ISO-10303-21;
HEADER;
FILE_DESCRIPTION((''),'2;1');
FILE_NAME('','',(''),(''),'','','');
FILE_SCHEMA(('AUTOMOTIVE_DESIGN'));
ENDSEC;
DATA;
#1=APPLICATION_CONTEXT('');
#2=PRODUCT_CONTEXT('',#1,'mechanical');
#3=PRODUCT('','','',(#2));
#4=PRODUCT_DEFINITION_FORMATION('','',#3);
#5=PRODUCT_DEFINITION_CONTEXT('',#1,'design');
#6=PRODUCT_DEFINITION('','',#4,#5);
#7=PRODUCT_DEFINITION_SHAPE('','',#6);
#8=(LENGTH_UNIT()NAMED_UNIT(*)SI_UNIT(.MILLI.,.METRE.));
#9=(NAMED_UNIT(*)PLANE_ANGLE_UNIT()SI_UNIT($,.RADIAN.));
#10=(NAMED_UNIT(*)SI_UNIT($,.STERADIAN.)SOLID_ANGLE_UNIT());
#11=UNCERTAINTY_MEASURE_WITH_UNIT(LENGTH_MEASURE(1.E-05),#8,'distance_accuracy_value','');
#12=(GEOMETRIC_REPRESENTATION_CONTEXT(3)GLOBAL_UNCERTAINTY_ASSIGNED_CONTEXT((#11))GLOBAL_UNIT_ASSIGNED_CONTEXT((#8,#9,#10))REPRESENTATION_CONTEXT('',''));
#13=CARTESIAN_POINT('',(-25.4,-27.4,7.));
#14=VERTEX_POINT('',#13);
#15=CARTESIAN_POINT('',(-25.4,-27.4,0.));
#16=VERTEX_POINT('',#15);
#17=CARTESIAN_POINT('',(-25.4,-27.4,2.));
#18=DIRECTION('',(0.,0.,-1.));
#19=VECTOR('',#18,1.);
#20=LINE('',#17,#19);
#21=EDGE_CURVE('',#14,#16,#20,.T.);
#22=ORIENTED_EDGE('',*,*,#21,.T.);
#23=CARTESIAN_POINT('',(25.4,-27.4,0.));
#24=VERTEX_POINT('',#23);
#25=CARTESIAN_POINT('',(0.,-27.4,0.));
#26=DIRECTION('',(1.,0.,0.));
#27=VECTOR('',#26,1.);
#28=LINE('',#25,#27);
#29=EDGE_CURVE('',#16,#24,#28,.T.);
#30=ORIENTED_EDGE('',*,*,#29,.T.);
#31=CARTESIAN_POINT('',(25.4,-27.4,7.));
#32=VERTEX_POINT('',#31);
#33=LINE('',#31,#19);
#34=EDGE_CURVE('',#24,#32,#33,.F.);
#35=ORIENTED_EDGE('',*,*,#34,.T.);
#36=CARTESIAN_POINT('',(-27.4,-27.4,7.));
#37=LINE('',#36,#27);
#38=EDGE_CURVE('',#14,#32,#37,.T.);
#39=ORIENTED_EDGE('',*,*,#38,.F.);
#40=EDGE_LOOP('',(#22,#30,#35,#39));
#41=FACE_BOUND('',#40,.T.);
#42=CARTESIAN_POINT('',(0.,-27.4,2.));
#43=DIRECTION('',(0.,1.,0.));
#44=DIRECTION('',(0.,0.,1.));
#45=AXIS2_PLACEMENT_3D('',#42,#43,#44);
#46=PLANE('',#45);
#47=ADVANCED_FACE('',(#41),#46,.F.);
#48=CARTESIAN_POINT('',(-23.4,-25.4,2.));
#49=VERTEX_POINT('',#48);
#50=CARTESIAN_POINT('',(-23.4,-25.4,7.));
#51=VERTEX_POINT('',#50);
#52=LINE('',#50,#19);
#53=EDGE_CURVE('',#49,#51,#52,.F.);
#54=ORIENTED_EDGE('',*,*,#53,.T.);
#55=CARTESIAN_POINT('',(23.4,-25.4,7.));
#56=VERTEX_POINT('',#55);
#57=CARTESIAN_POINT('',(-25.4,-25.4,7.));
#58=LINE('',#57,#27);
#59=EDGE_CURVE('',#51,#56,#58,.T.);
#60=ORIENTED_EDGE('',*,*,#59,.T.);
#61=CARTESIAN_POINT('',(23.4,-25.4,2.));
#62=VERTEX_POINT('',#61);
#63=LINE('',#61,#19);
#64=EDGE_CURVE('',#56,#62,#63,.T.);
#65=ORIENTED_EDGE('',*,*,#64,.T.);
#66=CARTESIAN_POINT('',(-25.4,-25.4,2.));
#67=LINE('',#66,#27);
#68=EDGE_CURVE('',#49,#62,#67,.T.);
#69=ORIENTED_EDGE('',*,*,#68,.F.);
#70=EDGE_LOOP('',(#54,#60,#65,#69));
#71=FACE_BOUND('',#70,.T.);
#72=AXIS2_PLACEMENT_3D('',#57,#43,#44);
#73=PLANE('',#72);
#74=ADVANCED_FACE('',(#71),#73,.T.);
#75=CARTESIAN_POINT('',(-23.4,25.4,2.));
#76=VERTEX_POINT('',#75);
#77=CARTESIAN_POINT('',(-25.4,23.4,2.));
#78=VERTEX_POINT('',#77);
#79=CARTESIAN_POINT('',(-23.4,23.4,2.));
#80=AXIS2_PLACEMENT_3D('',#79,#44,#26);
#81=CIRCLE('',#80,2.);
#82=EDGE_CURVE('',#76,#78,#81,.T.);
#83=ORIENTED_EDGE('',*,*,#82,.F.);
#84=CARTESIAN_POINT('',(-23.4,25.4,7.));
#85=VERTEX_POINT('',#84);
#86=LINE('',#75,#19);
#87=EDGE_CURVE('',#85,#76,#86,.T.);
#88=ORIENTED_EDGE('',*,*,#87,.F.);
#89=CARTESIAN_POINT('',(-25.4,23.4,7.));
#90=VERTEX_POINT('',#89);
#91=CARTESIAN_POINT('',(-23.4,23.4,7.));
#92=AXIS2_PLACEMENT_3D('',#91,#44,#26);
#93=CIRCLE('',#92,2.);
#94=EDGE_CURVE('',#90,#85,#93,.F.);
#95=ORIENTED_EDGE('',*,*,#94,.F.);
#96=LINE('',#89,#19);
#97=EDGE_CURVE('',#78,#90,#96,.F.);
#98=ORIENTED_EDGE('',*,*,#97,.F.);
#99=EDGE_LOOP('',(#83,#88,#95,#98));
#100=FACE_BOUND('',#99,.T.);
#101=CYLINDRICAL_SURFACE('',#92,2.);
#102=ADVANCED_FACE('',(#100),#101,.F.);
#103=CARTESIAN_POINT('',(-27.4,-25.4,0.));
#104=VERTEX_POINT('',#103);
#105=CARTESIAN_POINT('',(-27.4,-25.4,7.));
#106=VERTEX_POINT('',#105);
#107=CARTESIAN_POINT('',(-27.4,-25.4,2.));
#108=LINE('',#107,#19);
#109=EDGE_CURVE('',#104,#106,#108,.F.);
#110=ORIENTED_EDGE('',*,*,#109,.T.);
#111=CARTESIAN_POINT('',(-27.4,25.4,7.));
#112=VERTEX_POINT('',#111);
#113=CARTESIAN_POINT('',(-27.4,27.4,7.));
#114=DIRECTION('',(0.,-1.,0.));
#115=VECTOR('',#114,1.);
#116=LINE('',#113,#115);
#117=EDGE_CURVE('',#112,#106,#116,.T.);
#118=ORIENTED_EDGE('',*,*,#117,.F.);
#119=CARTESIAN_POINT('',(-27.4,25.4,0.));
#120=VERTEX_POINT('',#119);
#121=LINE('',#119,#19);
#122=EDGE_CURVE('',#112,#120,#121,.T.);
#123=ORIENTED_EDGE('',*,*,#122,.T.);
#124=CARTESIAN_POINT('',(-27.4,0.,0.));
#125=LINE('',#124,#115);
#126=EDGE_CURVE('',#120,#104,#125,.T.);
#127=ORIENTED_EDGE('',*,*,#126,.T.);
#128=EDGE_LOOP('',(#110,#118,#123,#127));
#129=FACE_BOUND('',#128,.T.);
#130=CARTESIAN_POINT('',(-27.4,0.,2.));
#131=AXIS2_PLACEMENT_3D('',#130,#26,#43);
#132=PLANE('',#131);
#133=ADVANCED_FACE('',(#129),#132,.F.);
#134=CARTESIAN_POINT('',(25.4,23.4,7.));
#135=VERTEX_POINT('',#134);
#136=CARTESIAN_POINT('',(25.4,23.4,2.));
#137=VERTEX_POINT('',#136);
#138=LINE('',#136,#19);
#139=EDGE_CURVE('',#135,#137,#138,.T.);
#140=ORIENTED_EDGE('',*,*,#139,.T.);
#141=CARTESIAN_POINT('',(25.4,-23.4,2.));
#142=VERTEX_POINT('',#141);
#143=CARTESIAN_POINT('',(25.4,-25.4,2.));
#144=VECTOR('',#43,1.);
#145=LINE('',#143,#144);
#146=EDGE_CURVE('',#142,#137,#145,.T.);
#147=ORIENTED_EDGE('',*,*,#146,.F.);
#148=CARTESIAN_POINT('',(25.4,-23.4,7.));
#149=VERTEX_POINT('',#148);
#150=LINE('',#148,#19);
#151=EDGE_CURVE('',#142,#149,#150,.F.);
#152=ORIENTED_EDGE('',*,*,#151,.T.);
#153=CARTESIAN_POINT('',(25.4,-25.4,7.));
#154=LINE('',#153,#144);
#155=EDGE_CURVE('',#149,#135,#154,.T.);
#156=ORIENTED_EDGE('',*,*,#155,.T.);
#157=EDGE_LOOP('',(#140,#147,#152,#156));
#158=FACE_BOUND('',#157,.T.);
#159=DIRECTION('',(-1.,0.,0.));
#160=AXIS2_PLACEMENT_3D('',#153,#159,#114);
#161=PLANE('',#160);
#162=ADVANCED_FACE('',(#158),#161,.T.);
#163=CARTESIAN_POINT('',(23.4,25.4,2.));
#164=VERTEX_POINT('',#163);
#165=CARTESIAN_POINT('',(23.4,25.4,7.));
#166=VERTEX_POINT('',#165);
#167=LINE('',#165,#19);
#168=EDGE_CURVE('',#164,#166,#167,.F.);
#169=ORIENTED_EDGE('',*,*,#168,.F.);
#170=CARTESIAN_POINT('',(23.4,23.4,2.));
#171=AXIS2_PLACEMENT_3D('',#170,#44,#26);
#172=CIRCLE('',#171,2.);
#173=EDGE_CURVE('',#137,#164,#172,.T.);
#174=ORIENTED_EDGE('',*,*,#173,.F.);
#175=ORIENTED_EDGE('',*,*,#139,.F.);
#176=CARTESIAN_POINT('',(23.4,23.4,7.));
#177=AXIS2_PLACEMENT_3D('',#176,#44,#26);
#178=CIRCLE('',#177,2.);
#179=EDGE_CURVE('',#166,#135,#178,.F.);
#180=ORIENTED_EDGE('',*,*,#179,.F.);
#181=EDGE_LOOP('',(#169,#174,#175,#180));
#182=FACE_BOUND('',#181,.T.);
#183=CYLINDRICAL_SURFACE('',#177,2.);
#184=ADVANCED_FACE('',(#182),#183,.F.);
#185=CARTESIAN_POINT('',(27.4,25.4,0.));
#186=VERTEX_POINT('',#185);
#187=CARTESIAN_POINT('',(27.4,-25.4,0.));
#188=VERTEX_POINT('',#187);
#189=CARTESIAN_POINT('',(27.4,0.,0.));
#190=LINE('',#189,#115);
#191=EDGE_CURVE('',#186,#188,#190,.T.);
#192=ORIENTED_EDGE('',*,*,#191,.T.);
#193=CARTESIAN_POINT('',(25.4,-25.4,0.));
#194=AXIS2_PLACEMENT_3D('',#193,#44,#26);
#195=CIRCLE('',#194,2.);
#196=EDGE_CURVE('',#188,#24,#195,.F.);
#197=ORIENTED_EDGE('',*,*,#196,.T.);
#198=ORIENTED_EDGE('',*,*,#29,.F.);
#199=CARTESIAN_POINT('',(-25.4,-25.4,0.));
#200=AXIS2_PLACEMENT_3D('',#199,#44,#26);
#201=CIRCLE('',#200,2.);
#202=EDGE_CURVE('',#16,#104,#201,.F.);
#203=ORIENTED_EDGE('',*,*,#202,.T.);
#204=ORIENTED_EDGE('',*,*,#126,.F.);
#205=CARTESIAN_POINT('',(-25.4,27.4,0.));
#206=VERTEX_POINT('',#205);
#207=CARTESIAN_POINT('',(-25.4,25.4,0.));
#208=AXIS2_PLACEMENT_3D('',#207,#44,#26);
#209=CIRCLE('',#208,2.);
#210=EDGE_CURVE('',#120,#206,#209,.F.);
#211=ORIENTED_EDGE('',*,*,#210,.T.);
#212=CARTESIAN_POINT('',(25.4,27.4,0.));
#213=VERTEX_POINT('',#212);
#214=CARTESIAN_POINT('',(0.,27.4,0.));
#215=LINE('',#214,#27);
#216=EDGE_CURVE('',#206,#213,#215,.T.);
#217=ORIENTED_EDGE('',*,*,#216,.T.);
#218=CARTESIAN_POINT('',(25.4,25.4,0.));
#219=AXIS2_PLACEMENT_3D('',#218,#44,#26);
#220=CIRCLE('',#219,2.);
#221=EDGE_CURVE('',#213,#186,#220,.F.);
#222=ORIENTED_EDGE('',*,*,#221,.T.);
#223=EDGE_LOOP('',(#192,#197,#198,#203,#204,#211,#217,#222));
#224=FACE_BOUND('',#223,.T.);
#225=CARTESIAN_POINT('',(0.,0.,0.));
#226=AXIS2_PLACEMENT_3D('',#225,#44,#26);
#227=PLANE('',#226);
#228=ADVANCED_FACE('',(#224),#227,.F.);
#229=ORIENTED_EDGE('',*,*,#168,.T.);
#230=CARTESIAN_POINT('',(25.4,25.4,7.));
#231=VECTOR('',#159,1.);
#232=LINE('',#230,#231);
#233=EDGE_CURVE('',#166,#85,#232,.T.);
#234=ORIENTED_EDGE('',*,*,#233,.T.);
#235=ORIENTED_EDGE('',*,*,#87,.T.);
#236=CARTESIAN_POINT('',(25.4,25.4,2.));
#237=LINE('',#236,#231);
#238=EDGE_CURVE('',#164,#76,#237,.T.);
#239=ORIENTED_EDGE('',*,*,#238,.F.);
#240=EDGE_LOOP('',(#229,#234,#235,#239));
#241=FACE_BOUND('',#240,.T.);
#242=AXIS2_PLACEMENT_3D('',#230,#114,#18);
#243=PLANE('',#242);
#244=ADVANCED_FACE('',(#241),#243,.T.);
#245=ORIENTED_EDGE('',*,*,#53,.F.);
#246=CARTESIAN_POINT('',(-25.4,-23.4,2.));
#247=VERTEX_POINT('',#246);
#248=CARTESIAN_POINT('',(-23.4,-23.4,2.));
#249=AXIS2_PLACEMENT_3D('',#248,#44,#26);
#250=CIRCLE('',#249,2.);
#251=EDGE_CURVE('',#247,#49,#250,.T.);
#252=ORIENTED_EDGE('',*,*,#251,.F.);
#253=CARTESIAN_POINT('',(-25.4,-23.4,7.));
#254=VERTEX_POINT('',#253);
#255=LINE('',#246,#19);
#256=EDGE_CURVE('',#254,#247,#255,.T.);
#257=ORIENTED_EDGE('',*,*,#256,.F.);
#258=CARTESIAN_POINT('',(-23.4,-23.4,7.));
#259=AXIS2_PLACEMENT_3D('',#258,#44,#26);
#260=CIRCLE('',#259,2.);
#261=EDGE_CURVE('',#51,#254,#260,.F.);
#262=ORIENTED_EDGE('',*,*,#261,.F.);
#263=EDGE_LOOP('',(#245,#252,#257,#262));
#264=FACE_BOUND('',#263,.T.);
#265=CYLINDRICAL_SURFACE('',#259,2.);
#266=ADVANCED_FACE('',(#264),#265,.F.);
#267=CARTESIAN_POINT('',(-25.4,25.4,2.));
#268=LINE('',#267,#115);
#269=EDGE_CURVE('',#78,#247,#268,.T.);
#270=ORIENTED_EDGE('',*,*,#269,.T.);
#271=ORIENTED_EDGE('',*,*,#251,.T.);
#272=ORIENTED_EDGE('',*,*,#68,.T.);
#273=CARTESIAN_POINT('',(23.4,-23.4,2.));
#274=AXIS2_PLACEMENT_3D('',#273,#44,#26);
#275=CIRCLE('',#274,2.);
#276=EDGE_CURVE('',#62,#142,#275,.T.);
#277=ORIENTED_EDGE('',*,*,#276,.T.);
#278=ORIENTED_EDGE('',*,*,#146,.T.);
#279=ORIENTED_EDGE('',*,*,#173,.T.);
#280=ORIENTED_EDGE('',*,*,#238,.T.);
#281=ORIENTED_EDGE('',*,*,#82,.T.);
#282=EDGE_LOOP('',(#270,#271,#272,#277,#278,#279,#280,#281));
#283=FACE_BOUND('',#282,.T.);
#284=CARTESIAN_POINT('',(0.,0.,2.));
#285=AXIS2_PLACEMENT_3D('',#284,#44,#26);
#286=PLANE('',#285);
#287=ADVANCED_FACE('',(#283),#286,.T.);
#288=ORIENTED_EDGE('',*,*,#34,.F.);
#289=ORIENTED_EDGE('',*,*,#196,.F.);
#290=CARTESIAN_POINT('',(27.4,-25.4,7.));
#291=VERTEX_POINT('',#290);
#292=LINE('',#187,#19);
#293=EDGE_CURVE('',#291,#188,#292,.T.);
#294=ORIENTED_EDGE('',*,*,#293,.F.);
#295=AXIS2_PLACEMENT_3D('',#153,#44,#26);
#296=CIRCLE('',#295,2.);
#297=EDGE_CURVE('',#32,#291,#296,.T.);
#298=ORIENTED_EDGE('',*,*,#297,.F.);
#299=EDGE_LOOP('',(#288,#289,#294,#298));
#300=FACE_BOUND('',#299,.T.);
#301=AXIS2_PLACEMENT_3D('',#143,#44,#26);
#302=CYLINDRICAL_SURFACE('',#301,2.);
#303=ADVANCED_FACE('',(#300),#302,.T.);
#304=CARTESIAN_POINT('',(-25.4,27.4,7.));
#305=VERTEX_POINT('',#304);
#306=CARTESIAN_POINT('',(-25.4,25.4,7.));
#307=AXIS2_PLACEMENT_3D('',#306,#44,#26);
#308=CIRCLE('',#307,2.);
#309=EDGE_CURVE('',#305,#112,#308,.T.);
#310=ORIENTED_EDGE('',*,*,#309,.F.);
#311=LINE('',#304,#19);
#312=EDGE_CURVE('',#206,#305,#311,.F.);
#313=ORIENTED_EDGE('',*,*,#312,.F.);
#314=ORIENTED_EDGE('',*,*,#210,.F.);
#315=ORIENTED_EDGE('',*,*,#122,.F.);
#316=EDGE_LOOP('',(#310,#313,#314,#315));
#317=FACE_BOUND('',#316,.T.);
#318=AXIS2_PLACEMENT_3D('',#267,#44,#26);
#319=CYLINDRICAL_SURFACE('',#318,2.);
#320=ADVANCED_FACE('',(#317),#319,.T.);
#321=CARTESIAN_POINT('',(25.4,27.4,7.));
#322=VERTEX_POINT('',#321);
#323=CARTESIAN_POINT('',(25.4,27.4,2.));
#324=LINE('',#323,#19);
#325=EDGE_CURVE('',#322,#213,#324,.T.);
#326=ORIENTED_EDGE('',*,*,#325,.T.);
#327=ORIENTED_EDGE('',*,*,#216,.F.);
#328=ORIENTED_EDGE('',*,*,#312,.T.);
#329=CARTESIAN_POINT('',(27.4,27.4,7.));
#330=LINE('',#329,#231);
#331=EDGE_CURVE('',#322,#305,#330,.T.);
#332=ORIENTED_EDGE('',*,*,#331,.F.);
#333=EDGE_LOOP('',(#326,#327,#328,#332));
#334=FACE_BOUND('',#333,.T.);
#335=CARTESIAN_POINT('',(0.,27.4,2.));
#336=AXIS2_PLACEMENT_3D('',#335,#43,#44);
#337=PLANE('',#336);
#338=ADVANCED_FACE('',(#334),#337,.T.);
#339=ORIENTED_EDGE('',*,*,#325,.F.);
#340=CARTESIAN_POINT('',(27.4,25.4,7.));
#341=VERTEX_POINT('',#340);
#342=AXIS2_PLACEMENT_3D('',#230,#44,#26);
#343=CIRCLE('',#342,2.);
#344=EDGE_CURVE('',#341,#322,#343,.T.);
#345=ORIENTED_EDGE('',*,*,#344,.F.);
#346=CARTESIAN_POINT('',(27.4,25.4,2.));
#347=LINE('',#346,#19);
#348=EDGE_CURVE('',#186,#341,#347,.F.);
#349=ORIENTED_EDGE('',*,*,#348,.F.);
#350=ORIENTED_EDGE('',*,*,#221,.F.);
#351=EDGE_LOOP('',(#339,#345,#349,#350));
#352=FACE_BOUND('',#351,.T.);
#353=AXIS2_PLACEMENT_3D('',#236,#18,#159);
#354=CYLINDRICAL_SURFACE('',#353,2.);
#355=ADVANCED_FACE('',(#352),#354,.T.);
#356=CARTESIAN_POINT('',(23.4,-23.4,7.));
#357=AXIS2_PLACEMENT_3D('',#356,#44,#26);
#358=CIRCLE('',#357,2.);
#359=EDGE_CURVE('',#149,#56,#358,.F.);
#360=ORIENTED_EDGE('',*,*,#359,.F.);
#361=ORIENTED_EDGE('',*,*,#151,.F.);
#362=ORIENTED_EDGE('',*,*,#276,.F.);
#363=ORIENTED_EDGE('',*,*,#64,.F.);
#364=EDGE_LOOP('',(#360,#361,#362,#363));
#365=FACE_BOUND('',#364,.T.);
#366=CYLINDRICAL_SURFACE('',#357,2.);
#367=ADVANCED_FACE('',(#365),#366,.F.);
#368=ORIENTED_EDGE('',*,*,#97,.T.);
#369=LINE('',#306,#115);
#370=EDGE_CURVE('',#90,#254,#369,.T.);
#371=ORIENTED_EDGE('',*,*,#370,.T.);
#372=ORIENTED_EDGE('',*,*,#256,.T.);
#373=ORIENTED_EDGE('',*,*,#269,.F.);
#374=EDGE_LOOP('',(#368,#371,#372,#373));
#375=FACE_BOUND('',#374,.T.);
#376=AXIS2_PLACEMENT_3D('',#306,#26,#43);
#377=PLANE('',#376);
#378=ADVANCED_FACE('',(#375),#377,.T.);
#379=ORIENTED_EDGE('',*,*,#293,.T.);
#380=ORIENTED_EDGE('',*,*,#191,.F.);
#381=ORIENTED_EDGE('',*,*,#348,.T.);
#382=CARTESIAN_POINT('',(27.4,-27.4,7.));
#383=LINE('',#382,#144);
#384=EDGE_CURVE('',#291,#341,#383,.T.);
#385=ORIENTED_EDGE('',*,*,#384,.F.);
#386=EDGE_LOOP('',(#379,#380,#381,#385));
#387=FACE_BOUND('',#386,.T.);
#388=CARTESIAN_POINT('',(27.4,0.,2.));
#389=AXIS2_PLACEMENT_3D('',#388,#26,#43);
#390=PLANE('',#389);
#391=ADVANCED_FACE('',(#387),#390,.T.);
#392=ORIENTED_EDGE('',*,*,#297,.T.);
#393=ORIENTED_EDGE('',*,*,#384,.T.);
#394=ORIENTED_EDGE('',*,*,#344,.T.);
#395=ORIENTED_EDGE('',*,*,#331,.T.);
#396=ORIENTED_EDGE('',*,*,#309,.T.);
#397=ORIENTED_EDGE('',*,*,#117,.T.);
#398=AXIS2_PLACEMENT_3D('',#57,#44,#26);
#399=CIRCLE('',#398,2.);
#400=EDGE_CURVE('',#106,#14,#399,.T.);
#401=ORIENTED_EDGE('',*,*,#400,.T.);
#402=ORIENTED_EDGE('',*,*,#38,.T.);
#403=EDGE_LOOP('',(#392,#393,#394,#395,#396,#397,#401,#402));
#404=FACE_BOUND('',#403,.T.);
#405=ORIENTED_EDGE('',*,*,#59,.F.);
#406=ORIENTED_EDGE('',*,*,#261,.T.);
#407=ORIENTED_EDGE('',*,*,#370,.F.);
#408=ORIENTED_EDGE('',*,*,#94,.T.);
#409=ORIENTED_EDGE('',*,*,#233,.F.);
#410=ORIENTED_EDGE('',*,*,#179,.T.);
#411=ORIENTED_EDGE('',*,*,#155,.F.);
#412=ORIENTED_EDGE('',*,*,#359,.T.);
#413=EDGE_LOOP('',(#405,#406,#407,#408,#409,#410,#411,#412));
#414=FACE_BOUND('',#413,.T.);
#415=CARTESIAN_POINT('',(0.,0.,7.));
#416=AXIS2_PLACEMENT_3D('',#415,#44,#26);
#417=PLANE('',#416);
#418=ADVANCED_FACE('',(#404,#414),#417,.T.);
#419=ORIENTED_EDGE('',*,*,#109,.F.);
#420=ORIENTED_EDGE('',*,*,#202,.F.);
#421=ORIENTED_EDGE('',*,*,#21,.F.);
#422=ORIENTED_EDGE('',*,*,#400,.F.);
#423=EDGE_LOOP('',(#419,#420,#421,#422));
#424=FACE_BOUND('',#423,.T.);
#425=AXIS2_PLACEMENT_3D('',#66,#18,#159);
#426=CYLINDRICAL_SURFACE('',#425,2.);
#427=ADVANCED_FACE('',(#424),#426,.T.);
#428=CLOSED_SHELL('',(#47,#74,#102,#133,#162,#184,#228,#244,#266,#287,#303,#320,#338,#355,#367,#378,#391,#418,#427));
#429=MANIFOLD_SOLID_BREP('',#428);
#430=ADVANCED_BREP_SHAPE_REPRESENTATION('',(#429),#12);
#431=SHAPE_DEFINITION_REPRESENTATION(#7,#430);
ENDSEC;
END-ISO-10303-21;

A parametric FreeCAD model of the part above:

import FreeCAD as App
import Part
import Sketcher

V = App.Vector


def edges_at(feature, points):
    """Names of the edges that pass closest to the given points."""
    edges = feature.Shape.Edges
    near = lambda p: min(range(len(edges)), key=lambda i: edges[i].distToShape(Part.Vertex(*p))[0])
    return sorted({f"Edge{near(p) + 1}" for p in points})

doc = App.newDocument("Part")
body = doc.addObject("PartDesign::Body", "Body")

sketch1 = body.newObject("Sketcher::SketchObject", "Sketch")
sketch1.AttachmentSupport = (doc.getObject("XY_Plane"), [""])
sketch1.MapMode = "FlatFace"
sketch1.addGeometry([
    Part.LineSegment(V(-27, 27, 0), V(-27, -27, 0)),
    Part.LineSegment(V(-27, -27, 0), V(27, -27, 0)),
    Part.LineSegment(V(27, -27, 0), V(27, 27, 0)),
    Part.LineSegment(V(27, 27, 0), V(-27, 27, 0)),
], False)
sketch1.addConstraint([
    Sketcher.Constraint("Coincident", 0, 2, 1, 1),
    Sketcher.Constraint("Coincident", 1, 2, 2, 1),
    Sketcher.Constraint("Coincident", 2, 2, 3, 1),
    Sketcher.Constraint("Coincident", 3, 2, 0, 1),
    Sketcher.Constraint("Vertical", 0),
    Sketcher.Constraint("Horizontal", 1),
    Sketcher.Constraint("Vertical", 2),
    Sketcher.Constraint("Horizontal", 3),
    Sketcher.Constraint("Symmetric", 0, 2, 2, 2, -1, 1),
    Sketcher.Constraint("Equal", 3, 0),
    Sketcher.Constraint("DistanceX", 1, 1, 1, 2, 54.8),
])
pad1 = body.newObject("PartDesign::Pad", "Pad")
pad1.Profile = sketch1
pad1.Length = 2

sketch2 = body.newObject("Sketcher::SketchObject", "Sketch001")
sketch2.AttachmentSupport = (doc.getObject("XY_Plane"), [""])
sketch2.MapMode = "FlatFace"
sketch2.AttachmentOffset = App.Placement(V(0, 0, 2), App.Rotation())
sketch2.addGeometry([
    Part.LineSegment(V(-27, 27, 0), V(-27, -27, 0)),
    Part.LineSegment(V(-27, -27, 0), V(27, -27, 0)),
    Part.LineSegment(V(27, -27, 0), V(27, 27, 0)),
    Part.LineSegment(V(27, 27, 0), V(-27, 27, 0)),
    Part.LineSegment(V(25, -25, 0), V(-25, -25, 0)),
    Part.LineSegment(V(-25, -25, 0), V(-25, 25, 0)),
    Part.LineSegment(V(-25, 25, 0), V(25, 25, 0)),
    Part.LineSegment(V(25, 25, 0), V(25, -25, 0)),
], False)
sketch2.addConstraint([
    Sketcher.Constraint("Coincident", 0, 2, 1, 1),
    Sketcher.Constraint("Coincident", 1, 2, 2, 1),
    Sketcher.Constraint("Coincident", 2, 2, 3, 1),
    Sketcher.Constraint("Coincident", 3, 2, 0, 1),
    Sketcher.Constraint("Coincident", 4, 2, 5, 1),
    Sketcher.Constraint("Coincident", 5, 2, 6, 1),
    Sketcher.Constraint("Coincident", 6, 2, 7, 1),
    Sketcher.Constraint("Coincident", 7, 2, 4, 1),
    Sketcher.Constraint("Vertical", 0),
    Sketcher.Constraint("Horizontal", 1),
    Sketcher.Constraint("Vertical", 2),
    Sketcher.Constraint("Horizontal", 3),
    Sketcher.Constraint("Horizontal", 4),
    Sketcher.Constraint("Vertical", 5),
    Sketcher.Constraint("Horizontal", 6),
    Sketcher.Constraint("Vertical", 7),
    Sketcher.Constraint("Symmetric", 0, 2, 2, 2, -1, 1),
    Sketcher.Constraint("Symmetric", 4, 2, 6, 2, -1, 1),
    Sketcher.Constraint("Equal", 3, 0),
    Sketcher.Constraint("Equal", 6, 5),
    Sketcher.Constraint("DistanceX", 1, 1, 1, 2, 54.8),
    Sketcher.Constraint("DistanceX", 4, 2, 4, 1, 50.8),
])
pad2 = body.newObject("PartDesign::Pad", "Pad001")
pad2.Profile = sketch2
pad2.Length = 5
doc.recompute()

fillet = body.newObject("PartDesign::Fillet", "Fillet")
fillet.Base = (pad2, edges_at(pad2, [
    (-25.4, -25.4, 4.5),
    (25.4, -25.4, 4.5),
    (25.4, 25.4, 4.5),
    (-25.4, 25.4, 4.5),
    (27.4, 27.4, 3.5),
    (27.4, -27.4, 3.5),
    (-27.4, -27.4, 3.5),
    (-27.4, 27.4, 3.5),
]))
fillet.Radius = 2

doc.recompute()
